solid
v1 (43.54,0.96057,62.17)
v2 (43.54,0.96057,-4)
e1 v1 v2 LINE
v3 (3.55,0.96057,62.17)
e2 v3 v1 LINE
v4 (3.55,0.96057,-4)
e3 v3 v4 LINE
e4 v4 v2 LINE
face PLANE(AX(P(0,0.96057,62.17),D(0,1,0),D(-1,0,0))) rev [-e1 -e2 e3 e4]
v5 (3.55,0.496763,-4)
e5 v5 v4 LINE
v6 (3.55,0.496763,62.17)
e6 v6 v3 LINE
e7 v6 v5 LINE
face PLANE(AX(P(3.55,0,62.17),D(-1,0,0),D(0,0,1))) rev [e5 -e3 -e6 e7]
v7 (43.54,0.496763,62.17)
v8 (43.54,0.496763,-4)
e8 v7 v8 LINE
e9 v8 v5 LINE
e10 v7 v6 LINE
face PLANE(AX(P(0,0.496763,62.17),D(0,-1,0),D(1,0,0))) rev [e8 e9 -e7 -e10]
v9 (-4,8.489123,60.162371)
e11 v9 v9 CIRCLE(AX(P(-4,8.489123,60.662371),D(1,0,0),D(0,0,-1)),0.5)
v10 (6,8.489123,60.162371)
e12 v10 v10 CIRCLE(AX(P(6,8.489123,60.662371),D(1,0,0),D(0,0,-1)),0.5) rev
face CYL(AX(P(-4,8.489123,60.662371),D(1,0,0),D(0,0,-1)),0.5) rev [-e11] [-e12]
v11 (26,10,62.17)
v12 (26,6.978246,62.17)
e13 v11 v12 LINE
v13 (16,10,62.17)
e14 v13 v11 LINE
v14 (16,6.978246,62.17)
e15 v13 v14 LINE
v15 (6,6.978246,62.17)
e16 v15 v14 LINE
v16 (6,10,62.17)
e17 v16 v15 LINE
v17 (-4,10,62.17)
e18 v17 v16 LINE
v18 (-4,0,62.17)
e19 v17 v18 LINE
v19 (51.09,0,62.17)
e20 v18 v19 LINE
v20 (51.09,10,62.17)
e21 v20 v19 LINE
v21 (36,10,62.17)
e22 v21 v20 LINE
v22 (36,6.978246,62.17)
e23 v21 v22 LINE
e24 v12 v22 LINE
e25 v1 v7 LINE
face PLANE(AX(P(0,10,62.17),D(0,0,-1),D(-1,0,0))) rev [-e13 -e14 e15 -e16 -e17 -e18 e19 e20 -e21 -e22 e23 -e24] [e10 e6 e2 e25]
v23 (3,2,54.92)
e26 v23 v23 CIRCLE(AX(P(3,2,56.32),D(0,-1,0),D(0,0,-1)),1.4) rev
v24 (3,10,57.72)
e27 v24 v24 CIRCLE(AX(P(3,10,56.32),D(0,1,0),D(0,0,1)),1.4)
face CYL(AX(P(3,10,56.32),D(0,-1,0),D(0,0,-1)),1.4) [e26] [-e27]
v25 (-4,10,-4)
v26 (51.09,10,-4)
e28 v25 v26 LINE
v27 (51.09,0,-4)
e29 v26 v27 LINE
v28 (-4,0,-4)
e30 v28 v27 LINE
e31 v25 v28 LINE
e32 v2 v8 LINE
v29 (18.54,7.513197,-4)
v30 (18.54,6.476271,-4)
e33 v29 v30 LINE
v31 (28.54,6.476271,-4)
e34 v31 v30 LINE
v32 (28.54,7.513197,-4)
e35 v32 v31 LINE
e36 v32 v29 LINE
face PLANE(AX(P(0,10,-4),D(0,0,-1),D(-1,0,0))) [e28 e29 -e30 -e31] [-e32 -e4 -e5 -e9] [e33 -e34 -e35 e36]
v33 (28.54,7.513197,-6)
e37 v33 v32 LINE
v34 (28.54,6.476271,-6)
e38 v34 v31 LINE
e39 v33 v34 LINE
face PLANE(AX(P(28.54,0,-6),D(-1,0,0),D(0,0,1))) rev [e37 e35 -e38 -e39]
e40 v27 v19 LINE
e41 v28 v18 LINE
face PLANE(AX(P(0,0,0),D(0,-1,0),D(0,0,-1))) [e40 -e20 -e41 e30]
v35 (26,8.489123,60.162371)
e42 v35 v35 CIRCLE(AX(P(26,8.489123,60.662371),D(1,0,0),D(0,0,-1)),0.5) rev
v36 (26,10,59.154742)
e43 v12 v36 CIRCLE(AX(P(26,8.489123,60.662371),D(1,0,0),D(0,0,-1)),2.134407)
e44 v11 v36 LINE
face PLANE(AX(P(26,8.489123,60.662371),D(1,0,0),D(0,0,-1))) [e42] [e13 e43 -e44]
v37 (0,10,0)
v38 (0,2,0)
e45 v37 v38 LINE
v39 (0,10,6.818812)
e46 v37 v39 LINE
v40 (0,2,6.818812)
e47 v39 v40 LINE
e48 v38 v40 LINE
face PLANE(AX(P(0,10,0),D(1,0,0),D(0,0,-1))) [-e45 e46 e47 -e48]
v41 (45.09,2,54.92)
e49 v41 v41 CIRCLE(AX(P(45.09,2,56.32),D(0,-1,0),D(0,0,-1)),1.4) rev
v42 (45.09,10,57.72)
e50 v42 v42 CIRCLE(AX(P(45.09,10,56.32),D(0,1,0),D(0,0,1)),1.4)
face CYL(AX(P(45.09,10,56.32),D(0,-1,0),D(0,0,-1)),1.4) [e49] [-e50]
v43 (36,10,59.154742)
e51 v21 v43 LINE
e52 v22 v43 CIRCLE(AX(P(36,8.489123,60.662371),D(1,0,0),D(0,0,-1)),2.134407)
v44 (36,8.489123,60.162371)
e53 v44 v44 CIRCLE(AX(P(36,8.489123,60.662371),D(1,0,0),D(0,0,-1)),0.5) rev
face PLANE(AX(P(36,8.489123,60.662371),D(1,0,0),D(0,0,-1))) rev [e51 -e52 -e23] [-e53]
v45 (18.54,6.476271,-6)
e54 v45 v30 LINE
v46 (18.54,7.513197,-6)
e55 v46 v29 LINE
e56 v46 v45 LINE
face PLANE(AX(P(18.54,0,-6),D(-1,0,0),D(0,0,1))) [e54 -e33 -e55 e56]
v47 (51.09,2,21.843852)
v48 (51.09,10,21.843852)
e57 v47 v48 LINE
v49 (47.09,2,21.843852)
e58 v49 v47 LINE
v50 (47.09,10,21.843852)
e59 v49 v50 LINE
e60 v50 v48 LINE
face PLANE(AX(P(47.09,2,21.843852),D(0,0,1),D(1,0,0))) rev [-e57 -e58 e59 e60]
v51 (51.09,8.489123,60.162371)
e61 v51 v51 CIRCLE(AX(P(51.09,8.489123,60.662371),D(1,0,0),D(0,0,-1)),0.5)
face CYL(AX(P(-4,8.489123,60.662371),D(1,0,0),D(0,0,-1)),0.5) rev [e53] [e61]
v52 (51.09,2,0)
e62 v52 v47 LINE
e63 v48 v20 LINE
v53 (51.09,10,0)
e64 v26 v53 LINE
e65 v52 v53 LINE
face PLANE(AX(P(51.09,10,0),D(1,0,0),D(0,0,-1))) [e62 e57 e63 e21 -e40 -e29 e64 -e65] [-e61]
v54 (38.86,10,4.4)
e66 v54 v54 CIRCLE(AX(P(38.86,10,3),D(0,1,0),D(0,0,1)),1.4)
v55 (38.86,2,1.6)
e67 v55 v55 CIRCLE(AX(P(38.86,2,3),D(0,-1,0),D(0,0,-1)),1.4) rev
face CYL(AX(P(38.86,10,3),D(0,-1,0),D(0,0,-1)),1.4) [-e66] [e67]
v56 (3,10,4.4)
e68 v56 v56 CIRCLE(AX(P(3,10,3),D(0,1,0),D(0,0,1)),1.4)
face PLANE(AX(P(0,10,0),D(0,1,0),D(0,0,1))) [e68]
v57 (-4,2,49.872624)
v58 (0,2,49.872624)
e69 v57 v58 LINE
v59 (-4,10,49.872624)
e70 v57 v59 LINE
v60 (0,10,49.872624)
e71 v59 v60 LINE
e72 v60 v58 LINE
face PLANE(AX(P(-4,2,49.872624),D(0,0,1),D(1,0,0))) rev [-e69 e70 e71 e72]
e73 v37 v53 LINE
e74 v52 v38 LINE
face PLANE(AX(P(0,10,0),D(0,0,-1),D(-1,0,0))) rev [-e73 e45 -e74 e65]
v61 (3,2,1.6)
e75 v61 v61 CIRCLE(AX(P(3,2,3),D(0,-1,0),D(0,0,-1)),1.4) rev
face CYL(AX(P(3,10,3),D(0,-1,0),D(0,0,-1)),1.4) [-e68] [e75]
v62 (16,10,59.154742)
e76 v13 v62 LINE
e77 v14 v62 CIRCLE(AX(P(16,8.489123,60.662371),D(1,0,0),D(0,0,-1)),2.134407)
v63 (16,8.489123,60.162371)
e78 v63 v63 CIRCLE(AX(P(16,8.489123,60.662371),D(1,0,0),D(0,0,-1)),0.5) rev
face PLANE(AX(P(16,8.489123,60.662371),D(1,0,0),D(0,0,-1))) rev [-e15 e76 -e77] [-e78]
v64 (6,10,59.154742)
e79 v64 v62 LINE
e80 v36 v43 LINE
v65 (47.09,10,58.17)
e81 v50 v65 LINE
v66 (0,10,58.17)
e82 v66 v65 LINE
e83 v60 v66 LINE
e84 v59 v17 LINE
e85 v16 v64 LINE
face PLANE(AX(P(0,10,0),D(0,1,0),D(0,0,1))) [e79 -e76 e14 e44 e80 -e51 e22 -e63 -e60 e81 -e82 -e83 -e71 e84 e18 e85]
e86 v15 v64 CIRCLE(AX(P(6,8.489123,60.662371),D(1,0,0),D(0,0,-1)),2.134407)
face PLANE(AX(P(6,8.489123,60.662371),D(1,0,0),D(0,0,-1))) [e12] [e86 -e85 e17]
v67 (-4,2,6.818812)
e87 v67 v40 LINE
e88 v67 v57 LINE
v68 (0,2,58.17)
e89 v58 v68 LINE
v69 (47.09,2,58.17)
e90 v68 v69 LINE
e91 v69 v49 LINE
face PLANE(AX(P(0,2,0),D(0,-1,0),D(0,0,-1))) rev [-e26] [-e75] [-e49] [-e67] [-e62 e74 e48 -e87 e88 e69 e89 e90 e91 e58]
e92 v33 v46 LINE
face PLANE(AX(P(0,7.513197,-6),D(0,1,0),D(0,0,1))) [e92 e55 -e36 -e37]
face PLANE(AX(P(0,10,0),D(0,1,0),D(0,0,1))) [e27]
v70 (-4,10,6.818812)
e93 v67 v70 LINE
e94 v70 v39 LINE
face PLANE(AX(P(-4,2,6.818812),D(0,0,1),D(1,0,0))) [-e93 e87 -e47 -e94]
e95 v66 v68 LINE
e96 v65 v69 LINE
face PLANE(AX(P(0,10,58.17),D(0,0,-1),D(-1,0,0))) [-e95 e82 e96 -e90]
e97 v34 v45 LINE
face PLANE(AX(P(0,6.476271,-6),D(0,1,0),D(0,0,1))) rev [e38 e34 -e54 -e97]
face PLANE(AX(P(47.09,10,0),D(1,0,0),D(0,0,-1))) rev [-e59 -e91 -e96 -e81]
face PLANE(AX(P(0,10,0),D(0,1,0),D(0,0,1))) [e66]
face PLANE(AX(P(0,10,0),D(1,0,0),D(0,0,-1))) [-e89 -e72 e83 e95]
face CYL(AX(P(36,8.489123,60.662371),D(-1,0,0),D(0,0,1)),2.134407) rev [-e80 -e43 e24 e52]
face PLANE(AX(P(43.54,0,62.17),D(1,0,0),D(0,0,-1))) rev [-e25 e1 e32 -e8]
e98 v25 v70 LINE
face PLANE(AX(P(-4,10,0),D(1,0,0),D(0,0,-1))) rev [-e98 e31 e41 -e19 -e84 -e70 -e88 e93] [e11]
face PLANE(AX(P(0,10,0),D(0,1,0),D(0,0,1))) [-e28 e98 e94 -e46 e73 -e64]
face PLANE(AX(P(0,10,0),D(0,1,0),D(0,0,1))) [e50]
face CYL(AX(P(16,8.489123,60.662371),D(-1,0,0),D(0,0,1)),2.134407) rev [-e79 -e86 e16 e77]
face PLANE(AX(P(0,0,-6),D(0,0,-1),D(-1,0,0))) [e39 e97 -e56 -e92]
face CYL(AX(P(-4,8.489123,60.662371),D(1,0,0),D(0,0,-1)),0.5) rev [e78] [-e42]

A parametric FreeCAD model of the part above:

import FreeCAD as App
import Part
import Sketcher
from FreeCAD import Vector

doc = App.newDocument("Part")
params = doc.addObject("Spreadsheet::Sheet", "Params")
for row, (alias, value) in enumerate([
    ("sketch1_width", "47.09 mm"),
    ("sketch1_height", "58.17 mm"),
    ("pad1_length", "2 mm"),
    ("sketch2_diameter", "2.8 mm"),
    ("pad2_length", "8 mm"),
    ("sketch3_width", "55.09 mm"),
    ("sketch3_height", "66.17 mm"),
    ("pad3_length", "10 mm"),
    ("sketch4_width", "4 mm"),
    ("pocket1_length", "8 mm"),
    ("sketch5_diameter", "1 mm"),
    ("pocket3_length", "10 mm"),
    ("pocket4_length", "10 mm"),
    ("sketch8_width", "10 mm"),
    ("pad4_length", "2 mm"),
    ("sketch9_width", "39.99 mm"),
], start=1):
    params.set(f"A{row}", alias)
    params.set(f"B{row}", "=" + value)
    params.setAlias(f"B{row}", alias)

body = doc.addObject("PartDesign::Body", "Body")

# Sketch on XZ plane
sketch1 = body.newObject("Sketcher::SketchObject", "Sketch")
sketch1.AttachmentSupport = (doc.getObject("XZ_Plane"), [""])
sketch1.MapMode = "FlatFace"
sketch1.addGeometry([
    Part.LineSegment(Vector(0, 0, 0), Vector(0, 58, 0)),
    Part.LineSegment(Vector(0, 58, 0), Vector(47, 58, 0)),
    Part.LineSegment(Vector(47, 58, 0), Vector(47, 0, 0)),
    Part.LineSegment(Vector(47, 0, 0), Vector(0, 0, 0)),
], False)
sketch1.addConstraint([
    Sketcher.Constraint("Coincident", 0, 2, 1, 1),
    Sketcher.Constraint("Coincident", 1, 2, 2, 1),
    Sketcher.Constraint("Coincident", 2, 2, 3, 1),
    Sketcher.Constraint("Coincident", 3, 2, 0, 1),
    Sketcher.Constraint("Vertical", 0),
    Sketcher.Constraint("Horizontal", 1),
    Sketcher.Constraint("Vertical", 2),
    Sketcher.Constraint("Horizontal", 3),
    Sketcher.Constraint("Coincident", 3, 2, -1, 1),
    Sketcher.Constraint("DistanceX", 1, 1, 1, 2, 47.09),
    Sketcher.Constraint("DistanceY", 0, 1, 0, 2, 58.17),
])
sketch1.setExpression("Constraints[9]", "Params.sketch1_width")
sketch1.setExpression("Constraints[10]", "Params.sketch1_height")
pad1 = body.newObject("PartDesign::Pad", "Pad")
pad1.Profile = sketch1
pad1.setExpression("Length", "Params.pad1_length")
pad1.Reversed = True

# Sketch on XZ plane
sketch2 = body.newObject("Sketcher::SketchObject", "Sketch001")
sketch2.AttachmentSupport = (doc.getObject("XZ_Plane"), [""])
sketch2.MapMode = "FlatFace"
sketch2.AttachmentOffset = App.Placement(Vector(0, 0, -2), App.Rotation())
sketch2.addGeometry([
    Part.Circle(Vector(38.9, 3, 0), Vector(0, 0, 1), 1.4),
    Part.Circle(Vector(45.1, 56.3, 0), Vector(0, 0, 1), 1.4),
    Part.Circle(Vector(3, 56.3, 0), Vector(0, 0, 1), 1.4),
    Part.Circle(Vector(3, 3, 0), Vector(0, 0, 1), 1.4),
], False)
sketch2.addConstraint([
    Sketcher.Constraint("Equal", 0, 1),
    Sketcher.Constraint("Equal", 1, 2),
    Sketcher.Constraint("Equal", 2, 3),
    Sketcher.Constraint("Horizontal", 1, 3, 2, 3),
    Sketcher.Constraint("Horizontal", 0, 3, 3, 3),
    Sketcher.Constraint("Vertical", 2, 3, 3, 3),
    Sketcher.Constraint("Diameter", 0, 2.8),
    Sketcher.Constraint("DistanceY", -1, 1, 0, 3, 3.0),
    Sketcher.Constraint("DistanceX", -1, 1, 2, 3, 3.0),
    Sketcher.Constraint("DistanceX", -1, 1, 0, 3, 38.86),
    Sketcher.Constraint("DistanceX", -1, 1, 1, 3, 45.09),
    Sketcher.Constraint("DistanceY", -1, 1, 1, 3, 56.32),
])
sketch2.setExpression("Constraints[6]", "Params.sketch2_diameter")
pad2 = body.newObject("PartDesign::Pad", "Pad001")
pad2.Profile = sketch2
pad2.setExpression("Length", "Params.pad2_length")
pad2.Reversed = True

# Sketch on XZ plane
sketch3 = body.newObject("Sketcher::SketchObject", "Sketch002")
sketch3.AttachmentSupport = (doc.getObject("XZ_Plane"), [""])
sketch3.MapMode = "FlatFace"
sketch3.addGeometry([
    Part.LineSegment(Vector(51, 62, 0), Vector(51, -4, 0)),  # 0
    Part.LineSegment(Vector(51, -4, 0), Vector(-4, -4, 0)),  # 1
    Part.LineSegment(Vector(-4, -4, 0), Vector(-4, 62, 0)),  # 2
    Part.LineSegment(Vector(-4, 62, 0), Vector(51, 62, 0)),  # 3
    Part.LineSegment(Vector(0, 0, 0), Vector(47, 0, 0)),  # 4
    Part.LineSegment(Vector(47, 0, 0), Vector(47, 58, 0)),  # 5
    Part.LineSegment(Vector(47, 58, 0), Vector(0, 58, 0)),  # 6
    Part.LineSegment(Vector(0, 58, 0), Vector(0, 0, 0)),  # 7
], False)
sketch3.addConstraint([
    Sketcher.Constraint("Coincident", 0, 2, 1, 1),
    Sketcher.Constraint("Coincident", 1, 2, 2, 1),
    Sketcher.Constraint("Coincident", 2, 2, 3, 1),
    Sketcher.Constraint("Coincident", 3, 2, 0, 1),
    Sketcher.Constraint("Coincident", 4, 2, 5, 1),
    Sketcher.Constraint("Coincident", 5, 2, 6, 1),
    Sketcher.Constraint("Coincident", 6, 2, 7, 1),
    Sketcher.Constraint("Coincident", 7, 2, 4, 1),
    Sketcher.Constraint("Vertical", 0),
    Sketcher.Constraint("Horizontal", 1),
    Sketcher.Constraint("Vertical", 2),
    Sketcher.Constraint("Horizontal", 3),
    Sketcher.Constraint("Horizontal", 4),
    Sketcher.Constraint("Vertical", 5),
    Sketcher.Constraint("Horizontal", 6),
    Sketcher.Constraint("Vertical", 7),
    Sketcher.Constraint("Coincident", 7, 2, -1, 1),
    Sketcher.Constraint("DistanceY", 0, 2, -1, 1, 4.0),
    Sketcher.Constraint("DistanceX", 1, 2, -1, 1, 4.0),
    Sketcher.Constraint("DistanceX", 4, 2, 0, 2, 4.0),
    Sketcher.Constraint("DistanceY", 5, 2, 3, 2, 4.0),
    Sketcher.Constraint("DistanceX", 1, 2, 1, 1, 55.09),
    Sketcher.Constraint("DistanceY", 0, 2, 0, 1, 66.17),
])
sketch3.setExpression("Constraints[21]", "Params.sketch3_width")
sketch3.setExpression("Constraints[22]", "Params.sketch3_height")
pad3 = body.newObject("PartDesign::Pad", "Pad002")
pad3.Profile = sketch3
pad3.setExpression("Length", "Params.pad3_length")
pad3.Reversed = True

# Sketch on XZ plane
sketch4 = body.newObject("Sketcher::SketchObject", "Sketch003")
sketch4.AttachmentSupport = (doc.getObject("XZ_Plane"), [""])
sketch4.MapMode = "FlatFace"
sketch4.AttachmentOffset = App.Placement(Vector(0, 0, -10), App.Rotation())
sketch4.addGeometry([
    Part.LineSegment(Vector(-4, 6.8, 0), Vector(-4, 49.9, 0)),  # 0
    Part.LineSegment(Vector(-4, 49.9, 0), Vector(0.1, 49.9, 0)),  # 1
    Part.LineSegment(Vector(0.1, 49.9, 0), Vector(0.1, 6.8, 0)),  # 2
    Part.LineSegment(Vector(0.1, 6.8, 0), Vector(-4, 6.8, 0)),  # 3
    Part.LineSegment(Vector(47.1, 0, 0), Vector(47.1, 21.8, 0)),  # 4
    Part.LineSegment(Vector(47.1, 21.8, 0), Vector(51.1, 21.8, 0)),  # 5
    Part.LineSegment(Vector(51.1, 21.8, 0), Vector(51.1, 0, 0)),  # 6
    Part.LineSegment(Vector(51.1, 0, 0), Vector(47.1, 0, 0)),  # 7
], False)
sketch4.addConstraint([
    Sketcher.Constraint("Coincident", 0, 2, 1, 1),
    Sketcher.Constraint("Coincident", 1, 2, 2, 1),
    Sketcher.Constraint("Coincident", 2, 2, 3, 1),
    Sketcher.Constraint("Coincident", 3, 2, 0, 1),
    Sketcher.Constraint("Coincident", 4, 2, 5, 1),
    Sketcher.Constraint("Coincident", 5, 2, 6, 1),
    Sketcher.Constraint("Coincident", 6, 2, 7, 1),
    Sketcher.Constraint("Coincident", 7, 2, 4, 1),
    Sketcher.Constraint("Vertical", 0),
    Sketcher.Constraint("Horizontal", 1),
    Sketcher.Constraint("Vertical", 2),
    Sketcher.Constraint("Horizontal", 3),
    Sketcher.Constraint("Vertical", 4),
    Sketcher.Constraint("Horizontal", 5),
    Sketcher.Constraint("Vertical", 6),
    Sketcher.Constraint("Horizontal", 7),
    Sketcher.Constraint("PointOnObject", 6, 2, -1),
    Sketcher.Constraint("DistanceX", 5, 1, 5, 2, 4.0),
    Sketcher.Constraint("DistanceX", 0, 2, -1, 1, 4.0),
    Sketcher.Constraint("DistanceX", -1, 1, 4, 2, 47.09),
    Sketcher.Constraint("DistanceY", 0, 1, 0, 2, 43.053812),
    Sketcher.Constraint("DistanceY", 4, 1, 4, 2, 21.843852),
    Sketcher.Constraint("DistanceX", 1, 1, 1, 2, 4.055357),
    Sketcher.Constraint("DistanceY", 2, 2, 4, 2, 15.025039),
])
sketch4.setExpression("Constraints[17]", "Params.sketch4_width")
pocket1 = body.newObject("PartDesign::Pocket", "Pocket")
pocket1.Profile = sketch4
pocket1.setExpression("Length", "Params.pocket1_length")
pocket1.Reversed = True

# Sketch on YZ plane
sketch5 = body.newObject("Sketcher::SketchObject", "Sketch004")
sketch5.AttachmentSupport = (doc.getObject("YZ_Plane"), [""])
sketch5.MapMode = "FlatFace"
sketch5.AttachmentOffset = App.Placement(Vector(0, 0, 51.09), App.Rotation())
sketch5.addGeometry(Part.Circle(Vector(8.5, 60.7, 0), Vector(0, 0, 1), 0.5), False)
sketch5.addConstraint([
    Sketcher.Constraint("Diameter", 0, 1.0),
    Sketcher.Constraint("DistanceY", -1, 1, 0, 3, 60.662371),
    Sketcher.Constraint("DistanceX", -1, 1, 0, 3, 8.489123),
])
sketch5.setExpression("Constraints[0]", "Params.sketch5_diameter")
pocket2 = body.newObject("PartDesign::Pocket", "Pocket001")
pocket2.Profile = sketch5
pocket2.Type = "ThroughAll"

# Sketch on YZ plane
sketch6 = body.newObject("Sketcher::SketchObject", "Sketch005")
sketch6.AttachmentSupport = (doc.getObject("YZ_Plane"), [""])
sketch6.MapMode = "FlatFace"
sketch6.AttachmentOffset = App.Placement(Vector(0, 0, 6), App.Rotation())
sketch6.addGeometry(Part.Circle(Vector(8.5, 60.7, 0), Vector(0, 0, 1), 2.1), False)
sketch6.addConstraint([
    Sketcher.Constraint("Diameter", 0, 4.268815),
    Sketcher.Constraint("DistanceY", -1, 1, 0, 3, 60.662371),
    Sketcher.Constraint("DistanceX", -1, 1, 0, 3, 8.489123),
])
pocket3 = body.newObject("PartDesign::Pocket", "Pocket002")
pocket3.Profile = sketch6
pocket3.setExpression("Length", "Params.pocket3_length")
pocket3.Reversed = True

# Sketch on YZ plane
sketch7 = body.newObject("Sketcher::SketchObject", "Sketch006")
sketch7.AttachmentSupport = (doc.getObject("YZ_Plane"), [""])
sketch7.MapMode = "FlatFace"
sketch7.AttachmentOffset = App.Placement(Vector(0, 0, 26), App.Rotation())
sketch7.addGeometry(Part.Circle(Vector(8.5, 60.7, 0), Vector(0, 0, 1), 2.1), False)
sketch7.addConstraint([
    Sketcher.Constraint("Diameter", 0, 4.268815),
    Sketcher.Constraint("DistanceY", -1, 1, 0, 3, 60.662371),
    Sketcher.Constraint("DistanceX", -1, 1, 0, 3, 8.489123),
])
pocket4 = body.newObject("PartDesign::Pocket", "Pocket003")
pocket4.Profile = sketch7
pocket4.setExpression("Length", "Params.pocket4_length")
pocket4.Reversed = True

# Sketch on XY plane
sketch8 = body.newObject("Sketcher::SketchObject", "Sketch007")
sketch8.AttachmentSupport = (doc.getObject("XY_Plane"), [""])
sketch8.MapMode = "FlatFace"
sketch8.AttachmentOffset = App.Placement(Vector(0, 0, -4), App.Rotation())
sketch8.addGeometry([
    Part.LineSegment(Vector(28.5, 7.5, 0), Vector(28.5, 6.5, 0)),
    Part.LineSegment(Vector(28.5, 6.5, 0), Vector(18.5, 6.5, 0)),
    Part.LineSegment(Vector(18.5, 6.5, 0), Vector(18.5, 7.5, 0)),
    Part.LineSegment(Vector(18.5, 7.5, 0), Vector(28.5, 7.5, 0)),
], False)
sketch8.addConstraint([
    Sketcher.Constraint("Coincident", 0, 2, 1, 1),
    Sketcher.Constraint("Coincident", 1, 2, 2, 1),
    Sketcher.Constraint("Coincident", 2, 2, 3, 1),
    Sketcher.Constraint("Coincident", 3, 2, 0, 1),
    Sketcher.Constraint("Vertical", 0),
    Sketcher.Constraint("Horizontal", 1),
    Sketcher.Constraint("Vertical", 2),
    Sketcher.Constraint("Horizontal", 3),
    Sketcher.Constraint("DistanceX", 1, 2, 1, 1, 10.0),
    Sketcher.Constraint("DistanceX", -1, 1, 0, 2, 28.54),
    Sketcher.Constraint("DistanceY", 0, 2, 0, 1, 1.036926),
    Sketcher.Constraint("DistanceY", -1, 1, 0, 2, 6.476271),
])
sketch8.setExpression("Constraints[8]", "Params.sketch8_width")
pad4 = body.newObject("PartDesign::Pad", "Pad003")
pad4.Profile = sketch8
pad4.setExpression("Length", "Params.pad4_length")
pad4.Reversed = True

# Sketch on XY plane
sketch9 = body.newObject("Sketcher::SketchObject", "Sketch008")
sketch9.AttachmentSupport = (doc.getObject("XY_Plane"), [""])
sketch9.MapMode = "FlatFace"
sketch9.AttachmentOffset = App.Placement(Vector(0, 0, -4), App.Rotation())
sketch9.addGeometry([
    Part.LineSegment(Vector(43.54, 0.96, 0), Vector(43.54, 0.5, 0)),
    Part.LineSegment(Vector(43.54, 0.5, 0), Vector(3.55, 0.5, 0)),
    Part.LineSegment(Vector(3.55, 0.5, 0), Vector(3.55, 0.96, 0)),
    Part.LineSegment(Vector(3.55, 0.96, 0), Vector(43.54, 0.96, 0)),
], False)
sketch9.addConstraint([
    Sketcher.Constraint("Coincident", 0, 2, 1, 1),
    Sketcher.Constraint("Coincident", 1, 2, 2, 1),
    Sketcher.Constraint("Coincident", 2, 2, 3, 1),
    Sketcher.Constraint("Coincident", 3, 2, 0, 1),
    Sketcher.Constraint("Vertical", 0),
    Sketcher.Constraint("Horizontal", 1),
    Sketcher.Constraint("Vertical", 2),
    Sketcher.Constraint("Horizontal", 3),
    Sketcher.Constraint("DistanceX", 1, 2, 1, 1, 39.99),
    Sketcher.Constraint("DistanceX", -1, 1, 0, 2, 43.54),
    Sketcher.Constraint("DistanceY", 0, 2, 0, 1, 0.463807),
    Sketcher.Constraint("DistanceY", -1, 1, 2, 2, 0.96057),
])
sketch9.setExpression("Constraints[8]", "Params.sketch9_width")
pocket5 = body.newObject("PartDesign::Pocket", "Pocket004")
pocket5.Profile = sketch9
pocket5.Type = "ThroughAll"
pocket5.Reversed = True

doc.recompute()
